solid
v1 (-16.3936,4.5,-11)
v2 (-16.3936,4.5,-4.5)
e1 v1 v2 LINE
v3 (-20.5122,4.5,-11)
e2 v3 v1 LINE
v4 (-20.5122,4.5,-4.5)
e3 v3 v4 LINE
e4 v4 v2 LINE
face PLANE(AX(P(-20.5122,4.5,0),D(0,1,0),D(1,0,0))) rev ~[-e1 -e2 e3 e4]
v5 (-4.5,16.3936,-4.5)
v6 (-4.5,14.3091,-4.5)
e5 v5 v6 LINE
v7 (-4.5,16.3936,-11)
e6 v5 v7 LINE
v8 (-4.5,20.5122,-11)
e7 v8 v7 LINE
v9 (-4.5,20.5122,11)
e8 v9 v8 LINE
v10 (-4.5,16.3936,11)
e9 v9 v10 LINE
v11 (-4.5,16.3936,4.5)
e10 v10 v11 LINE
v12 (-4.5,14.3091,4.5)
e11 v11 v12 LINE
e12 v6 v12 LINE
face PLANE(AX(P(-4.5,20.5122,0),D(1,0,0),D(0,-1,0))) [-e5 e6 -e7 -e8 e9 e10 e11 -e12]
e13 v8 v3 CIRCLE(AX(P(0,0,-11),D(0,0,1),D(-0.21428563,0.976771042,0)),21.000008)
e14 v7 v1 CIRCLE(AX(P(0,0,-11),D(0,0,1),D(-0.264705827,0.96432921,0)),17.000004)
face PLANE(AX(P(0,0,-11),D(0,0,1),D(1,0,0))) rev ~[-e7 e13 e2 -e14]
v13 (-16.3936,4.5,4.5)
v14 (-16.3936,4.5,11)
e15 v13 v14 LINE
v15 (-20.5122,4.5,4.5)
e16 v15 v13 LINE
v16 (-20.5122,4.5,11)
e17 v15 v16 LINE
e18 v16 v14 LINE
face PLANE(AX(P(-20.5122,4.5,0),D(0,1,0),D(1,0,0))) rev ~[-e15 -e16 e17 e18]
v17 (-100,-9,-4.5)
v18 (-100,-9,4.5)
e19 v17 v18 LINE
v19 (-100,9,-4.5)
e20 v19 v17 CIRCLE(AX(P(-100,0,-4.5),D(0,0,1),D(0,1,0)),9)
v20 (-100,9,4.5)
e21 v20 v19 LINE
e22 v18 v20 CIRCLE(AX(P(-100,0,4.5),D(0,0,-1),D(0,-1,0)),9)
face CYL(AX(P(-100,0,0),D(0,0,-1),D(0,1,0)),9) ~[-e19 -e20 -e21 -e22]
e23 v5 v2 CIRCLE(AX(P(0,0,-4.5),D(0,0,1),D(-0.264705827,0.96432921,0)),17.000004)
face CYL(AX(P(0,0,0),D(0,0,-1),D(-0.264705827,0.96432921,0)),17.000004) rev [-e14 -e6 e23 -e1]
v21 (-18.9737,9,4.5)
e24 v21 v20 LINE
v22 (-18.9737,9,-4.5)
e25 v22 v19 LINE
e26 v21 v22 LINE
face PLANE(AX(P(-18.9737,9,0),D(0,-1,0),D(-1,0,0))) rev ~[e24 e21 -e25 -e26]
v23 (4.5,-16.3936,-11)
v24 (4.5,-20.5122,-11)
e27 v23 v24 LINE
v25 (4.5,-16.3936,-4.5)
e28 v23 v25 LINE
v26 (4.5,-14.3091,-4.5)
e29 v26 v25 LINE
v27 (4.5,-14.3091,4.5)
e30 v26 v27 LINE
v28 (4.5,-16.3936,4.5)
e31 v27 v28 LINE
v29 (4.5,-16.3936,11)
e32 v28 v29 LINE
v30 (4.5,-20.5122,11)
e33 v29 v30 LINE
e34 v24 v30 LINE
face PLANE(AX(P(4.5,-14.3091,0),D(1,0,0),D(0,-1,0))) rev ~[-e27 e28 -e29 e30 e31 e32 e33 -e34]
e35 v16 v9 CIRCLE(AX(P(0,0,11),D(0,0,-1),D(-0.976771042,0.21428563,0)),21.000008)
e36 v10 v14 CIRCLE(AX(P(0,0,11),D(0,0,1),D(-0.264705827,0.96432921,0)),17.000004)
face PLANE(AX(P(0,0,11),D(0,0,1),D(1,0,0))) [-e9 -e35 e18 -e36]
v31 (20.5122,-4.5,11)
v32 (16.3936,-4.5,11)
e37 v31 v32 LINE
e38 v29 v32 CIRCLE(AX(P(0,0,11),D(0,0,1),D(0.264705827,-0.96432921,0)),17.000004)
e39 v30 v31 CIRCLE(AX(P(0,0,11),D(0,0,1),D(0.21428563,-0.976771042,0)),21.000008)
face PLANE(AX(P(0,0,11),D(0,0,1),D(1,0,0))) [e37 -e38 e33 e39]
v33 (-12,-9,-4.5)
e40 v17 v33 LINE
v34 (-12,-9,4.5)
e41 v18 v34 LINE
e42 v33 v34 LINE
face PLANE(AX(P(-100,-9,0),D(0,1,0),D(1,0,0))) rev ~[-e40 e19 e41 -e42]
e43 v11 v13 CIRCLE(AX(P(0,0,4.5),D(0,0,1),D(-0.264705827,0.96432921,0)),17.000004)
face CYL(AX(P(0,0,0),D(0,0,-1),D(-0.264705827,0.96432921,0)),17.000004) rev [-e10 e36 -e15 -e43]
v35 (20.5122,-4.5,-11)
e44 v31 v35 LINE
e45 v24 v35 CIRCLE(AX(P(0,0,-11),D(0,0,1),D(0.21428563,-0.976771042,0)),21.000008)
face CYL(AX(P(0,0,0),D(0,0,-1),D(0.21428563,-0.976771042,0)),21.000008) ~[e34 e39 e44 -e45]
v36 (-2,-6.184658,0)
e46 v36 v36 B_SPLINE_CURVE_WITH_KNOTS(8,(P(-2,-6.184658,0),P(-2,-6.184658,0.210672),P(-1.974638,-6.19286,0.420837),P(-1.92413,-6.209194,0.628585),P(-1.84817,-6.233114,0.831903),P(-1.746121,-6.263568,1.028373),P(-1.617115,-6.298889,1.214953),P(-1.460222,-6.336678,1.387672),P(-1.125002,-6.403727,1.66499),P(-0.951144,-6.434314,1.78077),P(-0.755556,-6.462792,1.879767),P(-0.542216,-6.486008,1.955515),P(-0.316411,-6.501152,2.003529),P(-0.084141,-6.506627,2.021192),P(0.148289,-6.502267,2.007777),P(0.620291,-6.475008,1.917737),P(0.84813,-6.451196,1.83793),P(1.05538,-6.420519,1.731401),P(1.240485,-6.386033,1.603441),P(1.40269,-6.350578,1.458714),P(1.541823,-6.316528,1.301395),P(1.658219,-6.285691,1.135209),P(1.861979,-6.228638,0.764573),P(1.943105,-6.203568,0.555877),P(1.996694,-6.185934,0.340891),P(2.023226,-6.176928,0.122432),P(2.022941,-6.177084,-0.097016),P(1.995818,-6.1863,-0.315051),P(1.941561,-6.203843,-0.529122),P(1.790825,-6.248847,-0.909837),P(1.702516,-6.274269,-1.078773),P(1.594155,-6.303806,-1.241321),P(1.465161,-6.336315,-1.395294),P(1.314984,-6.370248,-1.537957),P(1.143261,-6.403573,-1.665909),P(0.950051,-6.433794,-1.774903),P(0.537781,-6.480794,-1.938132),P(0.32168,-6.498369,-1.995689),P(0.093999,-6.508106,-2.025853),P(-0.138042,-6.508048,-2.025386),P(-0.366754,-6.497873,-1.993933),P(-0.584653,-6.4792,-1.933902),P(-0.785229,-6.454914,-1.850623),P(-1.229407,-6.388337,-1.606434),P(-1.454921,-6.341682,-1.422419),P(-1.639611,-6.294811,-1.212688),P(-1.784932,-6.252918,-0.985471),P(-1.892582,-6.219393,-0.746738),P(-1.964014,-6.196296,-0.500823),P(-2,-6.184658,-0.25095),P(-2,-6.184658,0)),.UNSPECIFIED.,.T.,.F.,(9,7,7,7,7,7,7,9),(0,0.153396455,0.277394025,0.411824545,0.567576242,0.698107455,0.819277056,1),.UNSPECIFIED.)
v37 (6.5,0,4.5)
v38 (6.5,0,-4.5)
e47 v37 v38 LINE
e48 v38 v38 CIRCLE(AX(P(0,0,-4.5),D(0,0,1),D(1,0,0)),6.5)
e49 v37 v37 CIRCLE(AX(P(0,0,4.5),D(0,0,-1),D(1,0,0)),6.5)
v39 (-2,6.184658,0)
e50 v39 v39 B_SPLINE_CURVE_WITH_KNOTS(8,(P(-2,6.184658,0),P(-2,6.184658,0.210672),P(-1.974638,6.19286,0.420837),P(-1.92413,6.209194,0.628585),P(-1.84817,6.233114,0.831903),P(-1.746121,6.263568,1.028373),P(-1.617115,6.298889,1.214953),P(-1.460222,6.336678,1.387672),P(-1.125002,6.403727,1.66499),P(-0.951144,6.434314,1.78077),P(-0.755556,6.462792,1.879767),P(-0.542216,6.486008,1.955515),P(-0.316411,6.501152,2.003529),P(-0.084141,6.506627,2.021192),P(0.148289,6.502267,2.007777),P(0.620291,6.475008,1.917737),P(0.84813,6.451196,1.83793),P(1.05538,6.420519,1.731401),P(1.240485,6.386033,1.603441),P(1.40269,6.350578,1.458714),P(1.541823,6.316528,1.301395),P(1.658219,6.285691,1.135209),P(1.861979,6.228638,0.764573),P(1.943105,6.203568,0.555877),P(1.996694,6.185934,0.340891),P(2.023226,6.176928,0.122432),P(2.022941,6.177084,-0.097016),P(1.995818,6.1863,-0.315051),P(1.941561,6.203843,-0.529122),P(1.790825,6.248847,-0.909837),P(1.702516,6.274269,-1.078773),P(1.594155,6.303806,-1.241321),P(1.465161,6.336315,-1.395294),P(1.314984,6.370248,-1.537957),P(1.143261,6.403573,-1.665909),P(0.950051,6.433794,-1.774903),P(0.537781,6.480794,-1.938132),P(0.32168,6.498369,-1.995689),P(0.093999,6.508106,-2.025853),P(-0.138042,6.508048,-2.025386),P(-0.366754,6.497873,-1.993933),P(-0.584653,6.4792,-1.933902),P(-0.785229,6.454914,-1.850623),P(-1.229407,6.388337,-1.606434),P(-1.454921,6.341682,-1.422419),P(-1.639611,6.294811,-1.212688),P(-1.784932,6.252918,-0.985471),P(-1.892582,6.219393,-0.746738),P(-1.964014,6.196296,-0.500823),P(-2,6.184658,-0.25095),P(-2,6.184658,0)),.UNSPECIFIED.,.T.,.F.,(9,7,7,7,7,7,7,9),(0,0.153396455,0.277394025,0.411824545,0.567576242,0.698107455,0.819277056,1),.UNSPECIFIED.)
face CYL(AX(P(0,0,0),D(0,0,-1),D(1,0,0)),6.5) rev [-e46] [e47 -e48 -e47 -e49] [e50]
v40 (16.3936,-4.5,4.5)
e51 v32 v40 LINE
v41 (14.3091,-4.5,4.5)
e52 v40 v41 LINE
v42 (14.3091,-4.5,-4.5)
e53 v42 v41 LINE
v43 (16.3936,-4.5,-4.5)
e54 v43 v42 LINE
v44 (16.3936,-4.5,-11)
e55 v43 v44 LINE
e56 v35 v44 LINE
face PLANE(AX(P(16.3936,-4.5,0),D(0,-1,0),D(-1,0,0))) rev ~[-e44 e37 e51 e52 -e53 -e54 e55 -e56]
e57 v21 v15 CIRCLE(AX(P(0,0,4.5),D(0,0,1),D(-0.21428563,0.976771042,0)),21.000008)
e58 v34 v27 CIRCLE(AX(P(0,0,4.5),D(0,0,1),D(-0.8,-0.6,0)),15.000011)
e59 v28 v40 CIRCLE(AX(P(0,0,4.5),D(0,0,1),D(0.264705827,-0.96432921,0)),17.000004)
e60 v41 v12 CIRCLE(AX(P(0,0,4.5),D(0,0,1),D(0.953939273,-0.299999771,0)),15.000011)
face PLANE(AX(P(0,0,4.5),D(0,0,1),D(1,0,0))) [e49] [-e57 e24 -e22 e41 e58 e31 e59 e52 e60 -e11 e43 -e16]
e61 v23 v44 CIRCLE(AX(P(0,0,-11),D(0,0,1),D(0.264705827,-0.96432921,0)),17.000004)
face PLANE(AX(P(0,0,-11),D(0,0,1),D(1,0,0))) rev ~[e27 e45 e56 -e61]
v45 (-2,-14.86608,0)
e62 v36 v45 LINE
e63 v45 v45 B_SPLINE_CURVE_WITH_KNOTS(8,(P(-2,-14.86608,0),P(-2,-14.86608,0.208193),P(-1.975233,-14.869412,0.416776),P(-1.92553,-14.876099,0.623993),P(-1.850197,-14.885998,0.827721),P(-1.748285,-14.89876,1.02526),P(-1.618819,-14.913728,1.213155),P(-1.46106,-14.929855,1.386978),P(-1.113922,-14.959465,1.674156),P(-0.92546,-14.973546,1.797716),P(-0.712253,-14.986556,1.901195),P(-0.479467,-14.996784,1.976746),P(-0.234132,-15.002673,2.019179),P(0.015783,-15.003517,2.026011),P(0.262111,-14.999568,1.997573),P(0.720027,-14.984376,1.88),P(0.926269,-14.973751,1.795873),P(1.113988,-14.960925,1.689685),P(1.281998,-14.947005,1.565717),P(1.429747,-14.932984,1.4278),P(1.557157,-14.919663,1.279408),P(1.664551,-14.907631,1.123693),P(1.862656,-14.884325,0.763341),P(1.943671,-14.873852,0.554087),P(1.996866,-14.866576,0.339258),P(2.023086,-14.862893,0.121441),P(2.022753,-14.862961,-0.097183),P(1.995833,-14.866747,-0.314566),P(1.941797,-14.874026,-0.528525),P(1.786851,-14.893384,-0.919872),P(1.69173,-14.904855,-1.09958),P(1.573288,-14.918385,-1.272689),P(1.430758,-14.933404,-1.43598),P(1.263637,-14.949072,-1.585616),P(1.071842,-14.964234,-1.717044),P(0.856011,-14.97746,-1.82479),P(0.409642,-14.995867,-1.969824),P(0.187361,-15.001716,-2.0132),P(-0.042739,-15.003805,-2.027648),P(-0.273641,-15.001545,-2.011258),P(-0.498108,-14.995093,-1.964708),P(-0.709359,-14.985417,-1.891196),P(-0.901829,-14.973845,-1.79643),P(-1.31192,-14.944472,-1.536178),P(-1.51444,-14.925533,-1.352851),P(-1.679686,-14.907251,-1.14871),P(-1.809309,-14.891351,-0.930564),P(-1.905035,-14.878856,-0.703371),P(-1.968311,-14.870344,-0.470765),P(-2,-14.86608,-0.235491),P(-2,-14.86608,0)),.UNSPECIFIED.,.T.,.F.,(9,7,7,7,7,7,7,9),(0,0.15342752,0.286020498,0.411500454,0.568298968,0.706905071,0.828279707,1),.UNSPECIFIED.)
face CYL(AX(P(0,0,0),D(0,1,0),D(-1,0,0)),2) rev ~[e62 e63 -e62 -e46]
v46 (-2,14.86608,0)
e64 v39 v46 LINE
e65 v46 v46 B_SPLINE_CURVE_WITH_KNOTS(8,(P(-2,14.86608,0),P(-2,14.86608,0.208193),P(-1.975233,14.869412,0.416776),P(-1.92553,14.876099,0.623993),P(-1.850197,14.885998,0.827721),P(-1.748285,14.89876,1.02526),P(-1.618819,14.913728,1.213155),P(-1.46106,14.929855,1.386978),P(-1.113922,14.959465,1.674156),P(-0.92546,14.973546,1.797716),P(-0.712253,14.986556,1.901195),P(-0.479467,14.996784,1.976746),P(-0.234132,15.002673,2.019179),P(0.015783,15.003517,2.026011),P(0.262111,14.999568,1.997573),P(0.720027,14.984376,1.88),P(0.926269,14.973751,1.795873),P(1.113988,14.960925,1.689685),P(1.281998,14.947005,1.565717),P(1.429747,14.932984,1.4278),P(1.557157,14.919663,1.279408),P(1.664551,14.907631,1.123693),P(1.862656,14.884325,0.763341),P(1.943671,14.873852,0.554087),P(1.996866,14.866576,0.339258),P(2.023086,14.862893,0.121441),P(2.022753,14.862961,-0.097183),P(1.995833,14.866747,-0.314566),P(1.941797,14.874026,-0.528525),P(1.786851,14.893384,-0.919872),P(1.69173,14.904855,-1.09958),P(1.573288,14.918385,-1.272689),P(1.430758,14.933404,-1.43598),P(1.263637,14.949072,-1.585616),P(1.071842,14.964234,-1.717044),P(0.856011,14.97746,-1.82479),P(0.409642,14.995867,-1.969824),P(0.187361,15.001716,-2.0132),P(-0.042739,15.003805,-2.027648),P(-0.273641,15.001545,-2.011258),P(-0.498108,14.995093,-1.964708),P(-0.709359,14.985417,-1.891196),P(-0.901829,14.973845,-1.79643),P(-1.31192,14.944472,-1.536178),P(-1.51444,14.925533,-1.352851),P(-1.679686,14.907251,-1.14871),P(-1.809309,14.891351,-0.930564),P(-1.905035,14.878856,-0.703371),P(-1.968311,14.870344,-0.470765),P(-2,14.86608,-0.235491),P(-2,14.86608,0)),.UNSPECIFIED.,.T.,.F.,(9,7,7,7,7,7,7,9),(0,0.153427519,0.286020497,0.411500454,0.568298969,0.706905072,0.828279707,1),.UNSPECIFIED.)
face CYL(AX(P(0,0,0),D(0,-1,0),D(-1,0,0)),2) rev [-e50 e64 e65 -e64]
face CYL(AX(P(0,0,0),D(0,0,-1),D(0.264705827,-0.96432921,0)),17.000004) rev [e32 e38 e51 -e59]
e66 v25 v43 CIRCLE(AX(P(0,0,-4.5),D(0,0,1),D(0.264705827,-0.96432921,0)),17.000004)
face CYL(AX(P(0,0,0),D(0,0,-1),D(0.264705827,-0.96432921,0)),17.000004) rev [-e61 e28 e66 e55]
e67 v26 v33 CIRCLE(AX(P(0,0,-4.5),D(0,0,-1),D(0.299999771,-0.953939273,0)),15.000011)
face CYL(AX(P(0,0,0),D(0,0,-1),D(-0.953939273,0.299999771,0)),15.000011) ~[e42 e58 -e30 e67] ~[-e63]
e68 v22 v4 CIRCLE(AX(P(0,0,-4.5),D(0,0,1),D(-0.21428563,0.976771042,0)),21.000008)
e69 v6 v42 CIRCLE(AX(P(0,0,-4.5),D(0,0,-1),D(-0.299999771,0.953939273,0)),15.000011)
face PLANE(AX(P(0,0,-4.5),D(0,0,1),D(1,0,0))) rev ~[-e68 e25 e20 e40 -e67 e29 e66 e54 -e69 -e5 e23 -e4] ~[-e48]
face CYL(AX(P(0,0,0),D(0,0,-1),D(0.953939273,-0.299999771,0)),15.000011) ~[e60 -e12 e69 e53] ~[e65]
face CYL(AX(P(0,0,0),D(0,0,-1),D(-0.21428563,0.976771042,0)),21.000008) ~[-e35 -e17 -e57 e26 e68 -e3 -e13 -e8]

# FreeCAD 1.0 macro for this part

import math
import FreeCAD as App
import Part
import Sketcher
Q = App.Units.Quantity

doc = App.newDocument("Part")
body = doc.addObject("PartDesign::Body", "Body")

sketch1 = body.newObject("Sketcher::SketchObject", "Sketch")
sketch1.AttachmentSupport = (doc.getObject("XY_Plane"), [""])
sketch1.MapMode = "FlatFace"
sketch1.addGeometry(Part.ArcOfCircle(Part.Circle(App.Vector(-100, 0, 0), App.Vector(0, 0, 1), 9), math.radians(90), math.radians(270)), False)
sketch1.addGeometry(Part.LineSegment(App.Vector(-100, -9, 0), App.Vector(-12, -9, 0)), False)
sketch1.addGeometry(Part.ArcOfCircle(Part.Circle(App.Vector(0, 0, 0), App.Vector(0, 0, 1), 15), math.radians(-143), math.radians(-73)), False)
sketch1.addGeometry(Part.LineSegment(App.Vector(4.5, -14.3, 0), App.Vector(4.5, -16.4, 0)), False)
sketch1.addGeometry(Part.ArcOfCircle(Part.Circle(App.Vector(0, 0, 0), App.Vector(0, 0, 1), 17), math.radians(-75), math.radians(-15)), False)
sketch1.addGeometry(Part.LineSegment(App.Vector(16.4, -4.5, 0), App.Vector(14.3, -4.5, 0)), False)
sketch1.addGeometry(Part.ArcOfCircle(Part.Circle(App.Vector(0, 0, 0), App.Vector(0, 0, 1), 15), math.radians(-17), math.radians(107)), False)
sketch1.addGeometry(Part.LineSegment(App.Vector(-4.5, 14.3, 0), App.Vector(-4.5, 16.4, 0)), False)
sketch1.addGeometry(Part.ArcOfCircle(Part.Circle(App.Vector(0, 0, 0), App.Vector(0, 0, 1), 17), math.radians(105), math.radians(165)), False)
sketch1.addGeometry(Part.LineSegment(App.Vector(-16.4, 4.5, 0), App.Vector(-20.5, 4.5, 0)), False)
sketch1.addGeometry(Part.ArcOfCircle(Part.Circle(App.Vector(0, 0, 0), App.Vector(0, 0, 1), 21), math.radians(154.62), math.radians(167.63)), False)
sketch1.addGeometry(Part.LineSegment(App.Vector(-19, 9, 0), App.Vector(-100, 9, 0)), False)
sketch1.addGeometry(Part.Circle(App.Vector(0, 0, 0), App.Vector(0, 0, 1), 6.5), False)
sketch1.addConstraint(Sketcher.Constraint("Tangent", 0, 2, 1, 1))
sketch1.addConstraint(Sketcher.Constraint("Coincident", 1, 2, 2, 1))
sketch1.addConstraint(Sketcher.Constraint("Coincident", 2, 2, 3, 1))
sketch1.addConstraint(Sketcher.Constraint("Coincident", 3, 2, 4, 1))
sketch1.addConstraint(Sketcher.Constraint("Coincident", 4, 2, 5, 1))
sketch1.addConstraint(Sketcher.Constraint("Coincident", 5, 2, 6, 1))
sketch1.addConstraint(Sketcher.Constraint("Coincident", 6, 2, 7, 1))
sketch1.addConstraint(Sketcher.Constraint("Coincident", 7, 2, 8, 1))
sketch1.addConstraint(Sketcher.Constraint("Coincident", 8, 2, 9, 1))
sketch1.addConstraint(Sketcher.Constraint("Coincident", 9, 2, 10, 2))
sketch1.addConstraint(Sketcher.Constraint("Coincident", 10, 1, 11, 1))
sketch1.addConstraint(Sketcher.Constraint("Tangent", 11, 2, 0, 1))
sketch1.addConstraint(Sketcher.Constraint("Horizontal", 1))
sketch1.addConstraint(Sketcher.Constraint("Vertical", 3))
sketch1.addConstraint(Sketcher.Constraint("Horizontal", 5))
sketch1.addConstraint(Sketcher.Constraint("Vertical", 7))
sketch1.addConstraint(Sketcher.Constraint("Horizontal", 9))
sketch1.addConstraint(Sketcher.Constraint("Horizontal", 11))
sketch1.addConstraint(Sketcher.Constraint("Coincident", 2, 3, -1, 1))
sketch1.addConstraint(Sketcher.Constraint("Coincident", 4, 3, -1, 1))
sketch1.addConstraint(Sketcher.Constraint("Coincident", 6, 3, -1, 1))
sketch1.addConstraint(Sketcher.Constraint("Coincident", 8, 3, -1, 1))
sketch1.addConstraint(Sketcher.Constraint("Coincident", 10, 3, -1, 1))
sketch1.addConstraint(Sketcher.Constraint("Coincident", 12, 3, -1, 1))
sketch1.addConstraint(Sketcher.Constraint("Equal", 2, 6))
sketch1.addConstraint(Sketcher.Constraint("Equal", 4, 8))
sketch1.addConstraint(Sketcher.Constraint("PointOnObject", 0, 3, -1))
sketch1.addConstraint(Sketcher.Constraint("Equal", 5, 3))
sketch1.addConstraint(Sketcher.Constraint("Equal", 3, 7))
sketch1.addConstraint(Sketcher.Constraint("Diameter", 12, Q("13 mm")))
sketch1.addConstraint(Sketcher.Constraint("Radius", 0, Q("9 mm")))
sketch1.addConstraint(Sketcher.Constraint("Radius", 2, Q("15 mm")))
sketch1.addConstraint(Sketcher.Constraint("Radius", 4, Q("17 mm")))
sketch1.addConstraint(Sketcher.Constraint("Radius", 10, Q("21 mm")))
sketch1.addConstraint(Sketcher.Constraint("DistanceX", 0, 3, -1, 1, Q("100 mm")))
sketch1.addConstraint(Sketcher.Constraint("DistanceX", -1, 1, 2, 2, Q("4.5 mm")))
sketch1.addConstraint(Sketcher.Constraint("DistanceY", -1, 1, 8, 2, Q("4.5 mm")))
pad1 = body.newObject("PartDesign::Pad", "Pad")
pad1.Profile = sketch1
pad1.Length = 9
pad1.Midplane = True

sketch2 = body.newObject("Sketcher::SketchObject", "Sketch001")
sketch2.AttachmentSupport = (doc.getObject("XY_Plane"), [""])
sketch2.MapMode = "FlatFace"
sketch2.addGeometry(Part.ArcOfCircle(Part.Circle(App.Vector(0, 0, 0), App.Vector(0, 0, 1), 21), math.radians(102), math.radians(168)), False)
sketch2.addGeometry(Part.LineSegment(App.Vector(-20.5, 4.5, 0), App.Vector(-16.4, 4.5, 0)), False)
sketch2.addGeometry(Part.ArcOfCircle(Part.Circle(App.Vector(0, 0, 0), App.Vector(0, 0, 1), 17), math.radians(105), math.radians(165)), False)
sketch2.addGeometry(Part.LineSegment(App.Vector(-4.5, 16.4, 0), App.Vector(-4.5, 20.5, 0)), False)
sketch2.addGeometry(Part.ArcOfCircle(Part.Circle(App.Vector(0, 0, 0), App.Vector(0, 0, 1), 17), math.radians(-75), math.radians(-15)), False)
sketch2.addGeometry(Part.LineSegment(App.Vector(4.5, -16.4, 0), App.Vector(4.5, -20.5, 0)), False)
sketch2.addGeometry(Part.ArcOfCircle(Part.Circle(App.Vector(0, 0, 0), App.Vector(0, 0, 1), 21), math.radians(-78), math.radians(-12)), False)
sketch2.addGeometry(Part.LineSegment(App.Vector(20.5, -4.5, 0), App.Vector(16.4, -4.5, 0)), False)
sketch2.addConstraint(Sketcher.Constraint("Coincident", 0, 2, 1, 1))
sketch2.addConstraint(Sketcher.Constraint("Coincident", 1, 2, 2, 2))
sketch2.addConstraint(Sketcher.Constraint("Coincident", 2, 1, 3, 1))
sketch2.addConstraint(Sketcher.Constraint("Coincident", 3, 2, 0, 1))
sketch2.addConstraint(Sketcher.Constraint("Coincident", 4, 1, 5, 1))
sketch2.addConstraint(Sketcher.Constraint("Coincident", 5, 2, 6, 1))
sketch2.addConstraint(Sketcher.Constraint("Coincident", 6, 2, 7, 1))
sketch2.addConstraint(Sketcher.Constraint("Coincident", 7, 2, 4, 2))
sketch2.addConstraint(Sketcher.Constraint("Horizontal", 1))
sketch2.addConstraint(Sketcher.Constraint("Vertical", 3))
sketch2.addConstraint(Sketcher.Constraint("Vertical", 5))
sketch2.addConstraint(Sketcher.Constraint("Horizontal", 7))
sketch2.addConstraint(Sketcher.Constraint("Coincident", 0, 3, -1, 1))
sketch2.addConstraint(Sketcher.Constraint("Coincident", 2, 3, -1, 1))
sketch2.addConstraint(Sketcher.Constraint("Coincident", 4, 3, -1, 1))
sketch2.addConstraint(Sketcher.Constraint("Coincident", 6, 3, -1, 1))
sketch2.addConstraint(Sketcher.Constraint("Equal", 2, 4))
sketch2.addConstraint(Sketcher.Constraint("Equal", 0, 6))
sketch2.addConstraint(Sketcher.Constraint("Equal", 1, 7))
sketch2.addConstraint(Sketcher.Constraint("Equal", 7, 3))
sketch2.addConstraint(Sketcher.Constraint("Equal", 3, 5))
sketch2.addConstraint(Sketcher.Constraint("Radius", 0, Q("21 mm")))
sketch2.addConstraint(Sketcher.Constraint("Radius", 2, Q("17 mm")))
sketch2.addConstraint(Sketcher.Constraint("DistanceY", -1, 1, 0, 2, Q("4.5 mm")))
pad2 = body.newObject("PartDesign::Pad", "Pad001")
pad2.Profile = sketch2
pad2.Length = 22
pad2.Midplane = True

sketch3 = body.newObject("Sketcher::SketchObject", "Sketch002")
sketch3.AttachmentSupport = (doc.getObject("XZ_Plane"), [""])
sketch3.MapMode = "FlatFace"
sketch3.addGeometry(Part.Circle(App.Vector(0, 0, 0), App.Vector(0, 0, 1), 2), False)
sketch3.addConstraint(Sketcher.Constraint("Coincident", 0, 3, -1, 1))
sketch3.addConstraint(Sketcher.Constraint("Diameter", 0, Q("4 mm")))
pocket1 = body.newObject("PartDesign::Pocket", "Pocket")
pocket1.Profile = sketch3
pocket1.Type = "ThroughAll"
pocket1.Midplane = True

doc.recompute()
